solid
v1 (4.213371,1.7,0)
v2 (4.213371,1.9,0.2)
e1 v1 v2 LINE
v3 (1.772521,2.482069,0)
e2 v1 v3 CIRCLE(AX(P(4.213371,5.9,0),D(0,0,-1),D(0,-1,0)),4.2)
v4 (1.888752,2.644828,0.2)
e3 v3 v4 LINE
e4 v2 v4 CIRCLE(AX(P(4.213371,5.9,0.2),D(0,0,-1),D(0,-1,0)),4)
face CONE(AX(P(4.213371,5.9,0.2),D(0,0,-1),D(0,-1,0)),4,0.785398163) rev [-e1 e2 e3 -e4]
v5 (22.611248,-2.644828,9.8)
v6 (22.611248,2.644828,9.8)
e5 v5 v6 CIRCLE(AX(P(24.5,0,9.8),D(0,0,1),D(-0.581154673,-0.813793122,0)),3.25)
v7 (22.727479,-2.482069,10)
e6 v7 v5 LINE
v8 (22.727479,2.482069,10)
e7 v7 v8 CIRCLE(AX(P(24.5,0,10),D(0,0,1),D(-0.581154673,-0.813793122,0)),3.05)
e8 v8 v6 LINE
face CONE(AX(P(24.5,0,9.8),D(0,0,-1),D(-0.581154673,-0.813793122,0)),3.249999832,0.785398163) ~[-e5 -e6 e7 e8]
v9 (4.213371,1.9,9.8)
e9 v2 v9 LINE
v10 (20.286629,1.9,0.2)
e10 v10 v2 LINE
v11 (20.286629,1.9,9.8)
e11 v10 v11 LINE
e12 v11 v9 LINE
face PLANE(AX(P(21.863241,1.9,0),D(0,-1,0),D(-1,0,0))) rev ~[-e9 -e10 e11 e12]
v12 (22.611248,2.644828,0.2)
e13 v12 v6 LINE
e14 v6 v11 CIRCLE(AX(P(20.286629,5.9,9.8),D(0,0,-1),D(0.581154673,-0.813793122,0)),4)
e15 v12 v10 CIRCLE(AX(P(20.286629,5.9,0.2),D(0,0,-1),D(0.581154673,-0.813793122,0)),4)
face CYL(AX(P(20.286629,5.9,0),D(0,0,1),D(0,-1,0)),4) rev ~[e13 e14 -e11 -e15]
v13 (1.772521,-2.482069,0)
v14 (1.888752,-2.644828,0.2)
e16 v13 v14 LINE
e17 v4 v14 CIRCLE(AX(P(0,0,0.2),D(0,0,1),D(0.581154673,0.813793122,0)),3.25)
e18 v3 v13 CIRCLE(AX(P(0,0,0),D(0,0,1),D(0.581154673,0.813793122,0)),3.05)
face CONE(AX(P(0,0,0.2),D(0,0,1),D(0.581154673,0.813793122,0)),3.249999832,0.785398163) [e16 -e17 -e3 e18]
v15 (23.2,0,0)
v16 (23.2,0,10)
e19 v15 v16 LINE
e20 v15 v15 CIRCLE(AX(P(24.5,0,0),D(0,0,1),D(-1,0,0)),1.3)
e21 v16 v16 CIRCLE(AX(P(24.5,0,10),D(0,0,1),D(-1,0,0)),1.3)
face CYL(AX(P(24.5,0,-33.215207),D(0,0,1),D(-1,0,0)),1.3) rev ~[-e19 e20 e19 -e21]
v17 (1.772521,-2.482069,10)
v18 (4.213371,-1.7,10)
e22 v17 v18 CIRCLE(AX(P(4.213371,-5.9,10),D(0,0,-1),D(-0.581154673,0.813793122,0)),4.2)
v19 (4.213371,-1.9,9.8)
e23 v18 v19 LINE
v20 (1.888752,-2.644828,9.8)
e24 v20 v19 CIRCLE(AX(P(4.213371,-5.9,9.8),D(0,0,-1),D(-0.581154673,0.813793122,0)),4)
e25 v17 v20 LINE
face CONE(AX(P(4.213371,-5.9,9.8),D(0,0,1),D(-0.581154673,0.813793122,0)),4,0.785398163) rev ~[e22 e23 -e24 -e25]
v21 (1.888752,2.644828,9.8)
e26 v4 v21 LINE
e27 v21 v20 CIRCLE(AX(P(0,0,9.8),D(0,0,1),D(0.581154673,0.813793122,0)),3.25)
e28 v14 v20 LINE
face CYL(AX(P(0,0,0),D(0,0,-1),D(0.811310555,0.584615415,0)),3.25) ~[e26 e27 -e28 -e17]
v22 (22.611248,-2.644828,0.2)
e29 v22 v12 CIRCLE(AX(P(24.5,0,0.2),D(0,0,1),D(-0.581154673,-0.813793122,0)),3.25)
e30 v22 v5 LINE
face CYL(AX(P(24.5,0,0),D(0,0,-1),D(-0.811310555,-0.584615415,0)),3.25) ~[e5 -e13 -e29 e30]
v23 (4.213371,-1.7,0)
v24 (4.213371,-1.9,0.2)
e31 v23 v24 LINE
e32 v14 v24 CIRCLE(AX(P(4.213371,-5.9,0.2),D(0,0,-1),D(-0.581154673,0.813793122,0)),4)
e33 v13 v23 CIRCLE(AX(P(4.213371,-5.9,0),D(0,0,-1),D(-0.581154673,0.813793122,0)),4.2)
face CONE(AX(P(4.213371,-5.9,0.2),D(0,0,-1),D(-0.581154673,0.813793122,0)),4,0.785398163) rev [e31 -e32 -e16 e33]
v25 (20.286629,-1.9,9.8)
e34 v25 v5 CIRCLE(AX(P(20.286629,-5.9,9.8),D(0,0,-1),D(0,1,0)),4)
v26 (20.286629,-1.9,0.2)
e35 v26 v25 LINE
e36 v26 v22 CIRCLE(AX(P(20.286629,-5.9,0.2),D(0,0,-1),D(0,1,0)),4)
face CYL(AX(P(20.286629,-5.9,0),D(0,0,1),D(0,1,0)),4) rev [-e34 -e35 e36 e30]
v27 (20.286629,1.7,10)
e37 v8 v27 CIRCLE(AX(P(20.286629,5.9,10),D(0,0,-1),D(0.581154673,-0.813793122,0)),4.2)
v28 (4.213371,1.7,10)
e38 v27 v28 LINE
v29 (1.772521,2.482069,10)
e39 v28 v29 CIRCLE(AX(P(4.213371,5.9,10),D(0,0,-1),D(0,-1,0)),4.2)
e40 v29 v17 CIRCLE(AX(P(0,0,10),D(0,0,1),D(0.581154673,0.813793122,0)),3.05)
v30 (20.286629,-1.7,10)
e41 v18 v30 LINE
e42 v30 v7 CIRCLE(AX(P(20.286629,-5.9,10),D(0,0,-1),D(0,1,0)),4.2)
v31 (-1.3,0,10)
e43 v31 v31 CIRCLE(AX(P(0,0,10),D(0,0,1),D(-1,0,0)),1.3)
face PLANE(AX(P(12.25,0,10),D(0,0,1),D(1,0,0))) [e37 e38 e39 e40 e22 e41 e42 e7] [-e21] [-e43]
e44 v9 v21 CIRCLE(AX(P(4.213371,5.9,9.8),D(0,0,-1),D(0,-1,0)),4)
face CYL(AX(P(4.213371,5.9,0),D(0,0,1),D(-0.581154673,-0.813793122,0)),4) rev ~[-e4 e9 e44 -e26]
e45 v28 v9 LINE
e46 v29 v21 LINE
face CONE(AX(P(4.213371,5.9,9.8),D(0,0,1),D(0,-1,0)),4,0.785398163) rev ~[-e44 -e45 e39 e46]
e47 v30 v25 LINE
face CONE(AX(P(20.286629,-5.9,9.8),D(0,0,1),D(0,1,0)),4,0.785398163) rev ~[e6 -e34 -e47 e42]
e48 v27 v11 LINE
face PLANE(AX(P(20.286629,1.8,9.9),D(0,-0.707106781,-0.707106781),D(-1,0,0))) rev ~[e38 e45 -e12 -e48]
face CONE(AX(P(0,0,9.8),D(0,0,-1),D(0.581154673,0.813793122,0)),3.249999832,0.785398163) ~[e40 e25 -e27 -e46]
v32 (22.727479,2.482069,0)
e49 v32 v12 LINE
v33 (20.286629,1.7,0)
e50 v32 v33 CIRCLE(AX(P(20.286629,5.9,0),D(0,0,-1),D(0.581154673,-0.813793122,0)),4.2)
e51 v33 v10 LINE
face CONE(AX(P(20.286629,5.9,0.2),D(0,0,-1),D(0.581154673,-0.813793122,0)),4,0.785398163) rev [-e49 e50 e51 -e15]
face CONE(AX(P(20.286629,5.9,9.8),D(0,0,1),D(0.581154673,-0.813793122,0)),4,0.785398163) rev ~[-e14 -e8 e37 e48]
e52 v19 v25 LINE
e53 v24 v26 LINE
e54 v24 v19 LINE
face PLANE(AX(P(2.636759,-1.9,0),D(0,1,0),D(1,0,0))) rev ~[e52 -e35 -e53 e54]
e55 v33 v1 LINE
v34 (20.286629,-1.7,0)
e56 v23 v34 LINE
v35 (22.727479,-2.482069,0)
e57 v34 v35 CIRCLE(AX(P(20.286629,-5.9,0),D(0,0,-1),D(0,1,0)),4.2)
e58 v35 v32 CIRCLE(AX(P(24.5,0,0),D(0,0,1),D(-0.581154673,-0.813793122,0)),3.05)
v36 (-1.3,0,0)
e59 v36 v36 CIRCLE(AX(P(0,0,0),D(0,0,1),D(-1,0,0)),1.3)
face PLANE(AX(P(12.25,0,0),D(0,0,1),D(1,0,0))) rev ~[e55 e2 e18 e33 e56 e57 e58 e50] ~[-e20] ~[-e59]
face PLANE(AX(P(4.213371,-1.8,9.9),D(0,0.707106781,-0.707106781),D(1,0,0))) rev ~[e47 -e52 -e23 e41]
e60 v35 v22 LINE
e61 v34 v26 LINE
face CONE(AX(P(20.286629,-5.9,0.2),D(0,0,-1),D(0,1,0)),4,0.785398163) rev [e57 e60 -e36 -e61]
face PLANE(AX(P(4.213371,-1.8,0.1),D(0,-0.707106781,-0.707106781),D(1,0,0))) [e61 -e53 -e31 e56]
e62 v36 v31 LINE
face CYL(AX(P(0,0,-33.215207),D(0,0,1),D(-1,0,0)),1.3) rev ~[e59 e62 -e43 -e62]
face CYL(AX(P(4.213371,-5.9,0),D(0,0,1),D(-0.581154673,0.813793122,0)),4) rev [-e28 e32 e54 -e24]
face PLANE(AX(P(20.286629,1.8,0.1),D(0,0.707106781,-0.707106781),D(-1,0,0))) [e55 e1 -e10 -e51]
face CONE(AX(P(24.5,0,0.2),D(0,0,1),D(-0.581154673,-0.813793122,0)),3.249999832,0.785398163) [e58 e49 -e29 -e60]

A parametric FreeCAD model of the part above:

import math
import FreeCAD as App
import Part
import Sketcher

V = App.Vector


def edges_at(feature, points):
    """Names of the edges that pass closest to the given points."""
    edges = feature.Shape.Edges
    near = lambda p: min(range(len(edges)), key=lambda i: edges[i].distToShape(Part.Vertex(*p))[0])
    return sorted({f"Edge{near(p) + 1}" for p in points})

doc = App.newDocument("Part")
params = doc.addObject("Spreadsheet::Sheet", "Params")
for row, (alias, value) in enumerate([
    ("sketch1_radius", "3.25 mm"),
    ("pad1_length", "10 mm"),
    ("sketch2_diameter", "2.6 mm"),
    ("hole_diameter", "2.6 mm"),
    ("fillet_radius", "4 mm"),
    ("chamfer_size", "0.2 mm"),
], start=1):
    params.set(f"A{row}", alias)
    params.set(f"B{row}", "=" + value)
    params.setAlias(f"B{row}", alias)

body = doc.addObject("PartDesign::Body", "Body")

sketch1 = doc.addObject("Sketcher::SketchObject", "Sketch")
body.addObject(sketch1)
sketch1.AttachmentSupport = (doc.XY_Plane, [""])
sketch1.MapMode = "FlatFace"
sketch1.addGeometry([
    Part.ArcOfCircle(Part.Circle(V(0, 0, 0), V(0, 0, 1), 3.2), math.radians(36), math.radians(324)),
    Part.LineSegment(V(2.6, -1.9, 0), V(21.9, -1.9, 0)),
    Part.ArcOfCircle(Part.Circle(V(24.5, 0, 0), V(0, 0, 1), 3.2), math.radians(-144), math.radians(144)),
    Part.LineSegment(V(21.9, 1.9, 0), V(2.6, 1.9, 0)),
], False)
sketch1.addConstraint([
    Sketcher.Constraint("Coincident", 0, 2, 1, 1),
    Sketcher.Constraint("Coincident", 1, 2, 2, 1),
    Sketcher.Constraint("Coincident", 2, 2, 3, 1),
    Sketcher.Constraint("Coincident", 3, 2, 0, 1),
    Sketcher.Constraint("Horizontal", 1),
    Sketcher.Constraint("Horizontal", 3),
    Sketcher.Constraint("Coincident", 0, 3, -1, 1),
    Sketcher.Constraint("Equal", 0, 2),
    Sketcher.Constraint("Symmetric", 1, 2, 2, 2, -1),
    Sketcher.Constraint("Radius", 0, 3.25),
    Sketcher.Constraint("DistanceX", -1, 1, 2, 3, 24.5),
    Sketcher.Constraint("DistanceY", 0, 2, -1, 1, 1.9),
])
sketch1.setExpression("Constraints[9]", "Params.sketch1_radius")
pad1 = doc.addObject("PartDesign::Pad", "Pad")
body.addObject(pad1)
pad1.Profile = sketch1
pad1.setExpression("Length", "Params.pad1_length")

sketch2 = doc.addObject("Sketcher::SketchObject", "Sketch001")
body.addObject(sketch2)
sketch2.AttachmentSupport = (doc.XY_Plane, [""])
sketch2.MapMode = "FlatFace"
sketch2.addGeometry([
    Part.Circle(V(0, 0, 0), V(0, 0, 1), 1.3),
    Part.Circle(V(24.5, 0, 0), V(0, 0, 1), 1.3),
], False)
sketch2.addConstraint([
    Sketcher.Constraint("Coincident", 0, 3, -1, 1),
    Sketcher.Constraint("Equal", 0, 1),
    Sketcher.Constraint("PointOnObject", 1, 3, -1),
    Sketcher.Constraint("Diameter", 0, 2.6),
    Sketcher.Constraint("DistanceX", -1, 1, 1, 3, 24.5),
])
sketch2.setExpression("Constraints[3]", "Params.sketch2_diameter")
doc.recompute()
hole = doc.addObject("PartDesign::Hole", "Hole")
body.addObject(hole)
hole.Profile = sketch2
hole.ThreadType = "None"
hole.setExpression("Diameter", "Params.hole_diameter")
hole.DepthType = "ThroughAll"
hole.Reversed = True
doc.recompute()

fillet = doc.addObject("PartDesign::Fillet", "Fillet")
body.addObject(fillet)
fillet.Base = (hole, edges_at(hole, [
    (2.637, -1.9, 5),
    (21.863, -1.9, 5),
    (2.637, 1.9, 5),
    (21.863, 1.9, 5),
]))
fillet.setExpression("Radius", "Params.fillet_radius")
doc.recompute()

chamfer = doc.addObject("PartDesign::Chamfer", "Chamfer")
body.addObject(chamfer)
chamfer.Base = (fillet, edges_at(fillet, [(12.25, 1.9, 0), (12.25, 1.9, 10)]))
chamfer.setExpression("Size", "Params.chamfer_size")

doc.recompute()
